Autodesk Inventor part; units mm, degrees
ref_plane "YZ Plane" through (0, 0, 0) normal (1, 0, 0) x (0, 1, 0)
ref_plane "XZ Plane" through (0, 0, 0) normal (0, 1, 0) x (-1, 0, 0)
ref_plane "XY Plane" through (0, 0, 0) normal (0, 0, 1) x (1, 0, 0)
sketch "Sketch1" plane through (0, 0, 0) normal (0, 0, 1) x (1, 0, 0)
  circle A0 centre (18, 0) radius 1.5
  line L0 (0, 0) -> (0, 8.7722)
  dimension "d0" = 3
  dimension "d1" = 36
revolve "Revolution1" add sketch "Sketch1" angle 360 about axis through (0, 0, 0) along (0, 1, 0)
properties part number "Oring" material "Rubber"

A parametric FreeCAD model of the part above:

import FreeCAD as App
import Part
import Sketcher

doc = App.newDocument("Part")
params = doc.addObject("Spreadsheet::Sheet", "Params")
for row, (alias, value) in enumerate([
    ("sketch1_diameter", "3 mm"),
    ("revolution_angle", "360 deg"),
], start=1):
    params.set(f"A{row}", alias)
    params.set(f"B{row}", "=" + value)
    params.setAlias(f"B{row}", alias)

body = doc.addObject("PartDesign::Body", "Body")

# Sketch on XY plane
sketch1 = doc.addObject("Sketcher::SketchObject", "Sketch")
body.addObject(sketch1)
sketch1.AttachmentSupport = (doc.XY_Plane, [""])
sketch1.MapMode = "FlatFace"
sketch1.addGeometry(Part.Circle(App.Vector(18, 0, 0), App.Vector(0, 0, 1), 1.5), False)
sketch1.addConstraint([
    Sketcher.Constraint("PointOnObject", 0, 3, -1),
    Sketcher.Constraint("Diameter", 0, 3.0),
    Sketcher.Constraint("DistanceX", -1, 1, 0, 3, 18.0),
])
sketch1.setExpression("Constraints[1]", "Params.sketch1_diameter")
revolution = doc.addObject("PartDesign::Revolution", "Revolution")
body.addObject(revolution)
revolution.Profile = sketch1
revolution.ReferenceAxis = (sketch1, ["V_Axis"])
revolution.setExpression("Angle", "Params.revolution_angle")

doc.recompute()
